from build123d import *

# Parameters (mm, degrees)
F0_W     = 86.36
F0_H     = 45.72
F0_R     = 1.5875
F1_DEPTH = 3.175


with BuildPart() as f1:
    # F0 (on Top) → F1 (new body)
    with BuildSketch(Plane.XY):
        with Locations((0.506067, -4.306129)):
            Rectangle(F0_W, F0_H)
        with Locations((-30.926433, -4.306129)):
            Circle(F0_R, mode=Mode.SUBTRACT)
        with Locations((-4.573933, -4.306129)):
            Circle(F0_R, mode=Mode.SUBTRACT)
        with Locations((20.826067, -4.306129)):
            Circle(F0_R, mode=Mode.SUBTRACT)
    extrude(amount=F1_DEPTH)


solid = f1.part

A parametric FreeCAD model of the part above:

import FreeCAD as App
import Part
import Sketcher
from FreeCAD import Vector
Q = App.Units.Quantity


def add_polygon(sketch, points):
    """Adds a closed chain of lines whose ends are joined by coincident constraints."""
    first, n = sketch.GeometryCount, len(points)
    for a, b in zip(points, points[1:] + points[:1]):
        sketch.addGeometry(Part.LineSegment(App.Vector(*a, 0), App.Vector(*b, 0)), False)
    for i in range(n):
        sketch.addConstraint(Sketcher.Constraint("Coincident", first + i, 2, first + (i + 1) % n, 1))

doc = App.newDocument("Part")
params = doc.addObject("Spreadsheet::Sheet", "Params")
for row, (alias, value) in enumerate([
    ("sketch1_diameter", "0.125 in"),
    ("sketch1_width", "3.4 in"),
    ("sketch1_height", "1.8 in"),
    ("pad1_length", "0.125 in"),
], start=1):
    params.set(f"A{row}", alias)
    params.set(f"B{row}", "=" + value)
    params.setAlias(f"B{row}", alias)

body = doc.addObject("PartDesign::Body", "Body")

sketch1 = doc.addObject("Sketcher::SketchObject", "Sketch")
body.addObject(sketch1)
sketch1.AttachmentSupport = (doc.XY_Plane, [""])
sketch1.MapMode = "FlatFace"
add_polygon(sketch1, [(-42.673933, 18.553871), (-42.673933, -27.166129), (43.686067, -27.166129), (43.686067, 18.553871)])
sketch1.addGeometry(Part.Circle(Vector(-30.926433, -4.306129, 0), Vector(0, 0, 1), 1.5875), False)
sketch1.addGeometry(Part.Circle(Vector(-4.573933, -4.306129, 0), Vector(0, 0, 1), 1.5875), False)
sketch1.addGeometry(Part.Circle(Vector(20.826067, -4.306129, 0), Vector(0, 0, 1), 1.5875), False)
sketch1.addConstraint(Sketcher.Constraint("Vertical", 0))
sketch1.addConstraint(Sketcher.Constraint("Horizontal", 1))
sketch1.addConstraint(Sketcher.Constraint("Vertical", 2))
sketch1.addConstraint(Sketcher.Constraint("Horizontal", 3))
sketch1.addConstraint(Sketcher.Constraint("Equal", 4, 5))
sketch1.addConstraint(Sketcher.Constraint("Equal", 5, 6))
sketch1.addConstraint(Sketcher.Constraint("Horizontal", 4, 3, 5, 3))
sketch1.addConstraint(Sketcher.Constraint("Horizontal", 5, 3, 6, 3))
sketch1.addConstraint(Sketcher.Constraint("Diameter", 4, Q("0.125 in")))
sketch1.addConstraint(Sketcher.Constraint("DistanceX", 1, 1, 1, 2, Q("3.4 in")))
sketch1.addConstraint(Sketcher.Constraint("DistanceY", 0, 2, 0, 1, Q("1.8 in")))
sketch1.addConstraint(Sketcher.Constraint("DistanceX", 5, 3, 6, 3, Q("1 in")))
sketch1.addConstraint(Sketcher.Constraint("DistanceY", 0, 2, 4, 3, Q("0.9 in")))
sketch1.addConstraint(Sketcher.Constraint("DistanceX", 0, 2, 5, 3, Q("1.5 in")))
sketch1.addConstraint(Sketcher.Constraint("DistanceX", 4, 3, 1, 2, Q("2.9375 in")))
sketch1.addConstraint(Sketcher.Constraint("DistanceY", 4, 3, -1, 1, 4.306129))
sketch1.addConstraint(Sketcher.Constraint("DistanceX", 4, 3, -1, 1, 30.926433))
sketch1.setExpression("Constraints[12]", "Params.sketch1_diameter")
sketch1.setExpression("Constraints[13]", "Params.sketch1_width")
sketch1.setExpression("Constraints[14]", "Params.sketch1_height")
pad1 = doc.addObject("PartDesign::Pad", "Pad")
body.addObject(pad1)
pad1.Profile = sketch1
pad1.setExpression("Length", "Params.pad1_length")

doc.recompute()
